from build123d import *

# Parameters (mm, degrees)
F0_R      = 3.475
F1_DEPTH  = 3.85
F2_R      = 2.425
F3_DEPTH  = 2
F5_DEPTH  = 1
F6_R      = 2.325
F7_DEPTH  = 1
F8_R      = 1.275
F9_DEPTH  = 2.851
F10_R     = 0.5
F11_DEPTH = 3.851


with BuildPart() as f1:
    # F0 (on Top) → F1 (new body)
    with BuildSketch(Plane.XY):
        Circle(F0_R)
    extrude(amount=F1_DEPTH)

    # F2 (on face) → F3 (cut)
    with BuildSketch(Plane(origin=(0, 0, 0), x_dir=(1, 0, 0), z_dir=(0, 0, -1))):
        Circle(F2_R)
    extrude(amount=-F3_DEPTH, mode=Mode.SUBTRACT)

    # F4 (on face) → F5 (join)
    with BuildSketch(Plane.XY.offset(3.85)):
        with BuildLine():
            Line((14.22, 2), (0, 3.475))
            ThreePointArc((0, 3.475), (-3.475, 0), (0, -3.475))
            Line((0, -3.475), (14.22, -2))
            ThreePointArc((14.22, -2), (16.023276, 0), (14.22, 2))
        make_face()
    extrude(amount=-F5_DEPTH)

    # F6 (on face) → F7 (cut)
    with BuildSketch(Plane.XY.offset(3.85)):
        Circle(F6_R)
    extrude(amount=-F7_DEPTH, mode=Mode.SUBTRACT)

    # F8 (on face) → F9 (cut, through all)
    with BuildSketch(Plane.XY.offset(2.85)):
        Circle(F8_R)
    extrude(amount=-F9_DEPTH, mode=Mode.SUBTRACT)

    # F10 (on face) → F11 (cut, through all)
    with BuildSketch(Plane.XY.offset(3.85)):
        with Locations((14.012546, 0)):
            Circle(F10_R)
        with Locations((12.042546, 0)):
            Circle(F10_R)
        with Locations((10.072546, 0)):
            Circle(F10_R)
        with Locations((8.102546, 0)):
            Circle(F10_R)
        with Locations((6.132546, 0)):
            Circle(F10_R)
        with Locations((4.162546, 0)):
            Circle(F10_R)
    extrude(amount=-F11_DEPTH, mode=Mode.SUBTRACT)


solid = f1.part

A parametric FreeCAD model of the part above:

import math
import FreeCAD as App
import Part
import Sketcher

V = App.Vector

doc = App.newDocument("Part")
body = doc.addObject("PartDesign::Body", "Body")

sketch1 = body.newObject("Sketcher::SketchObject", "Sketch")
sketch1.AttachmentSupport = (doc.getObject("XY_Plane"), [""])
sketch1.MapMode = "FlatFace"
sketch1.addGeometry(Part.Circle(V(0, 0, 0), V(0, 0, 1), 3.5), False)
sketch1.addConstraint(Sketcher.Constraint("Coincident", 0, 3, -1, 1))
sketch1.addConstraint(Sketcher.Constraint("Diameter", 0, 6.95))
pad1 = body.newObject("PartDesign::Pad", "Pad")
pad1.Profile = sketch1
pad1.Length = 3.85

sketch2 = body.newObject("Sketcher::SketchObject", "Sketch001")
sketch2.AttachmentSupport = (doc.getObject("XY_Plane"), [""])
sketch2.MapMode = "FlatFace"
sketch2.addGeometry(Part.Circle(V(0, 0, 0), V(0, 0, 1), 2.4), False)
sketch2.addConstraint(Sketcher.Constraint("Coincident", 0, 3, -1, 1))
sketch2.addConstraint(Sketcher.Constraint("Diameter", 0, 4.85))
pocket1 = body.newObject("PartDesign::Pocket", "Pocket")
pocket1.Profile = sketch2
pocket1.Length = 2
pocket1.Reversed = True

sketch3 = body.newObject("Sketcher::SketchObject", "Sketch002")
sketch3.AttachmentSupport = (doc.getObject("XY_Plane"), [""])
sketch3.MapMode = "FlatFace"
sketch3.AttachmentOffset = App.Placement(V(0, 0, 3.85), App.Rotation())
sketch3.addGeometry(Part.LineSegment(V(14.2, 2, 0), V(0, 3.5, 0)), False)
sketch3.addGeometry(Part.ArcOfCircle(Part.Circle(V(0, 0, 0), V(0, 0, 1), 3.5), math.radians(90), math.radians(270)), False)
sketch3.addGeometry(Part.LineSegment(V(0, -3.5, 0), V(14.2, -2, 0)), False)
sketch3.addGeometry(Part.ArcOfCircle(Part.Circle(V(14, 0, 0), V(0, 0, 1), 2), math.radians(-84), math.radians(84)), False)
sketch3.addConstraint(Sketcher.Constraint("Coincident", 0, 2, 1, 1))
sketch3.addConstraint(Sketcher.Constraint("Coincident", 1, 2, 2, 1))
sketch3.addConstraint(Sketcher.Constraint("Tangent", 2, 2, 3, 1))
sketch3.addConstraint(Sketcher.Constraint("Tangent", 3, 2, 0, 1))
sketch3.addConstraint(Sketcher.Constraint("Coincident", 1, 3, -1, 1))
sketch3.addConstraint(Sketcher.Constraint("Symmetric", 2, 2, 3, 2, -1))
sketch3.addConstraint(Sketcher.Constraint("PointOnObject", 0, 2, -2))
sketch3.addConstraint(Sketcher.Constraint("DistanceY", 2, 2, -1, 1, 2.0))
sketch3.addConstraint(Sketcher.Constraint("Radius", 1, 3.475))
sketch3.addConstraint(Sketcher.Constraint("DistanceX", -1, 1, 2, 2, 14.22))
pad2 = body.newObject("PartDesign::Pad", "Pad001")
pad2.Profile = sketch3
pad2.Length = 1
pad2.Reversed = True

sketch4 = body.newObject("Sketcher::SketchObject", "Sketch003")
sketch4.AttachmentSupport = (doc.getObject("XY_Plane"), [""])
sketch4.MapMode = "FlatFace"
sketch4.AttachmentOffset = App.Placement(V(0, 0, 3.85), App.Rotation())
sketch4.addGeometry(Part.Circle(V(0, 0, 0), V(0, 0, 1), 2.3), False)
sketch4.addConstraint(Sketcher.Constraint("Coincident", 0, 3, -1, 1))
sketch4.addConstraint(Sketcher.Constraint("Diameter", 0, 4.65))
pocket2 = body.newObject("PartDesign::Pocket", "Pocket001")
pocket2.Profile = sketch4
pocket2.Length = 1

sketch5 = body.newObject("Sketcher::SketchObject", "Sketch004")
sketch5.AttachmentSupport = (doc.getObject("XY_Plane"), [""])
sketch5.MapMode = "FlatFace"
sketch5.AttachmentOffset = App.Placement(V(0, 0, 2.85), App.Rotation())
sketch5.addGeometry(Part.Circle(V(0, 0, 0), V(0, 0, 1), 1.3), False)
sketch5.addConstraint(Sketcher.Constraint("Coincident", 0, 3, -1, 1))
sketch5.addConstraint(Sketcher.Constraint("Diameter", 0, 2.55))
pocket3 = body.newObject("PartDesign::Pocket", "Pocket002")
pocket3.Profile = sketch5
pocket3.Type = "ThroughAll"

sketch6 = body.newObject("Sketcher::SketchObject", "Sketch005")
sketch6.AttachmentSupport = (doc.getObject("XY_Plane"), [""])
sketch6.MapMode = "FlatFace"
sketch6.AttachmentOffset = App.Placement(V(0, 0, 3.85), App.Rotation())
sketch6.addGeometry(Part.Circle(V(14, 0, 0), V(0, 0, 1), 0.5), False)
sketch6.addGeometry(Part.Circle(V(12, 0, 0), V(0, 0, 1), 0.5), False)
sketch6.addGeometry(Part.Circle(V(10.1, 0, 0), V(0, 0, 1), 0.5), False)
sketch6.addGeometry(Part.Circle(V(8.1, 0, 0), V(0, 0, 1), 0.5), False)
sketch6.addGeometry(Part.Circle(V(6.1, 0, 0), V(0, 0, 1), 0.5), False)
sketch6.addGeometry(Part.Circle(V(4.2, 0, 0), V(0, 0, 1), 0.5), False)
sketch6.addConstraint(Sketcher.Constraint("Equal", 0, 1))
sketch6.addConstraint(Sketcher.Constraint("Equal", 1, 2))
sketch6.addConstraint(Sketcher.Constraint("Equal", 2, 3))
sketch6.addConstraint(Sketcher.Constraint("Equal", 3, 4))
sketch6.addConstraint(Sketcher.Constraint("Equal", 4, 5))
sketch6.addConstraint(Sketcher.Constraint("PointOnObject", 0, 3, -1))
sketch6.addConstraint(Sketcher.Constraint("PointOnObject", 1, 3, -1))
sketch6.addConstraint(Sketcher.Constraint("PointOnObject", 2, 3, -1))
sketch6.addConstraint(Sketcher.Constraint("PointOnObject", 3, 3, -1))
sketch6.addConstraint(Sketcher.Constraint("PointOnObject", 4, 3, -1))
sketch6.addConstraint(Sketcher.Constraint("PointOnObject", 5, 3, -1))
sketch6.addConstraint(Sketcher.Constraint("Diameter", 0, 1.0))
sketch6.addConstraint(Sketcher.Constraint("DistanceX", 1, 3, 0, 3, 1.97))
sketch6.addConstraint(Sketcher.Constraint("DistanceX", 2, 3, 1, 3, 1.97))
sketch6.addConstraint(Sketcher.Constraint("DistanceX", 3, 3, 2, 3, 1.97))
sketch6.addConstraint(Sketcher.Constraint("DistanceX", 4, 3, 3, 3, 1.97))
sketch6.addConstraint(Sketcher.Constraint("DistanceX", 5, 3, 4, 3, 1.97))
sketch6.addConstraint(Sketcher.Constraint("DistanceX", -1, 1, 0, 3, 14.012546))
pocket4 = body.newObject("PartDesign::Pocket", "Pocket003")
pocket4.Profile = sketch6
pocket4.Type = "ThroughAll"

doc.recompute()
